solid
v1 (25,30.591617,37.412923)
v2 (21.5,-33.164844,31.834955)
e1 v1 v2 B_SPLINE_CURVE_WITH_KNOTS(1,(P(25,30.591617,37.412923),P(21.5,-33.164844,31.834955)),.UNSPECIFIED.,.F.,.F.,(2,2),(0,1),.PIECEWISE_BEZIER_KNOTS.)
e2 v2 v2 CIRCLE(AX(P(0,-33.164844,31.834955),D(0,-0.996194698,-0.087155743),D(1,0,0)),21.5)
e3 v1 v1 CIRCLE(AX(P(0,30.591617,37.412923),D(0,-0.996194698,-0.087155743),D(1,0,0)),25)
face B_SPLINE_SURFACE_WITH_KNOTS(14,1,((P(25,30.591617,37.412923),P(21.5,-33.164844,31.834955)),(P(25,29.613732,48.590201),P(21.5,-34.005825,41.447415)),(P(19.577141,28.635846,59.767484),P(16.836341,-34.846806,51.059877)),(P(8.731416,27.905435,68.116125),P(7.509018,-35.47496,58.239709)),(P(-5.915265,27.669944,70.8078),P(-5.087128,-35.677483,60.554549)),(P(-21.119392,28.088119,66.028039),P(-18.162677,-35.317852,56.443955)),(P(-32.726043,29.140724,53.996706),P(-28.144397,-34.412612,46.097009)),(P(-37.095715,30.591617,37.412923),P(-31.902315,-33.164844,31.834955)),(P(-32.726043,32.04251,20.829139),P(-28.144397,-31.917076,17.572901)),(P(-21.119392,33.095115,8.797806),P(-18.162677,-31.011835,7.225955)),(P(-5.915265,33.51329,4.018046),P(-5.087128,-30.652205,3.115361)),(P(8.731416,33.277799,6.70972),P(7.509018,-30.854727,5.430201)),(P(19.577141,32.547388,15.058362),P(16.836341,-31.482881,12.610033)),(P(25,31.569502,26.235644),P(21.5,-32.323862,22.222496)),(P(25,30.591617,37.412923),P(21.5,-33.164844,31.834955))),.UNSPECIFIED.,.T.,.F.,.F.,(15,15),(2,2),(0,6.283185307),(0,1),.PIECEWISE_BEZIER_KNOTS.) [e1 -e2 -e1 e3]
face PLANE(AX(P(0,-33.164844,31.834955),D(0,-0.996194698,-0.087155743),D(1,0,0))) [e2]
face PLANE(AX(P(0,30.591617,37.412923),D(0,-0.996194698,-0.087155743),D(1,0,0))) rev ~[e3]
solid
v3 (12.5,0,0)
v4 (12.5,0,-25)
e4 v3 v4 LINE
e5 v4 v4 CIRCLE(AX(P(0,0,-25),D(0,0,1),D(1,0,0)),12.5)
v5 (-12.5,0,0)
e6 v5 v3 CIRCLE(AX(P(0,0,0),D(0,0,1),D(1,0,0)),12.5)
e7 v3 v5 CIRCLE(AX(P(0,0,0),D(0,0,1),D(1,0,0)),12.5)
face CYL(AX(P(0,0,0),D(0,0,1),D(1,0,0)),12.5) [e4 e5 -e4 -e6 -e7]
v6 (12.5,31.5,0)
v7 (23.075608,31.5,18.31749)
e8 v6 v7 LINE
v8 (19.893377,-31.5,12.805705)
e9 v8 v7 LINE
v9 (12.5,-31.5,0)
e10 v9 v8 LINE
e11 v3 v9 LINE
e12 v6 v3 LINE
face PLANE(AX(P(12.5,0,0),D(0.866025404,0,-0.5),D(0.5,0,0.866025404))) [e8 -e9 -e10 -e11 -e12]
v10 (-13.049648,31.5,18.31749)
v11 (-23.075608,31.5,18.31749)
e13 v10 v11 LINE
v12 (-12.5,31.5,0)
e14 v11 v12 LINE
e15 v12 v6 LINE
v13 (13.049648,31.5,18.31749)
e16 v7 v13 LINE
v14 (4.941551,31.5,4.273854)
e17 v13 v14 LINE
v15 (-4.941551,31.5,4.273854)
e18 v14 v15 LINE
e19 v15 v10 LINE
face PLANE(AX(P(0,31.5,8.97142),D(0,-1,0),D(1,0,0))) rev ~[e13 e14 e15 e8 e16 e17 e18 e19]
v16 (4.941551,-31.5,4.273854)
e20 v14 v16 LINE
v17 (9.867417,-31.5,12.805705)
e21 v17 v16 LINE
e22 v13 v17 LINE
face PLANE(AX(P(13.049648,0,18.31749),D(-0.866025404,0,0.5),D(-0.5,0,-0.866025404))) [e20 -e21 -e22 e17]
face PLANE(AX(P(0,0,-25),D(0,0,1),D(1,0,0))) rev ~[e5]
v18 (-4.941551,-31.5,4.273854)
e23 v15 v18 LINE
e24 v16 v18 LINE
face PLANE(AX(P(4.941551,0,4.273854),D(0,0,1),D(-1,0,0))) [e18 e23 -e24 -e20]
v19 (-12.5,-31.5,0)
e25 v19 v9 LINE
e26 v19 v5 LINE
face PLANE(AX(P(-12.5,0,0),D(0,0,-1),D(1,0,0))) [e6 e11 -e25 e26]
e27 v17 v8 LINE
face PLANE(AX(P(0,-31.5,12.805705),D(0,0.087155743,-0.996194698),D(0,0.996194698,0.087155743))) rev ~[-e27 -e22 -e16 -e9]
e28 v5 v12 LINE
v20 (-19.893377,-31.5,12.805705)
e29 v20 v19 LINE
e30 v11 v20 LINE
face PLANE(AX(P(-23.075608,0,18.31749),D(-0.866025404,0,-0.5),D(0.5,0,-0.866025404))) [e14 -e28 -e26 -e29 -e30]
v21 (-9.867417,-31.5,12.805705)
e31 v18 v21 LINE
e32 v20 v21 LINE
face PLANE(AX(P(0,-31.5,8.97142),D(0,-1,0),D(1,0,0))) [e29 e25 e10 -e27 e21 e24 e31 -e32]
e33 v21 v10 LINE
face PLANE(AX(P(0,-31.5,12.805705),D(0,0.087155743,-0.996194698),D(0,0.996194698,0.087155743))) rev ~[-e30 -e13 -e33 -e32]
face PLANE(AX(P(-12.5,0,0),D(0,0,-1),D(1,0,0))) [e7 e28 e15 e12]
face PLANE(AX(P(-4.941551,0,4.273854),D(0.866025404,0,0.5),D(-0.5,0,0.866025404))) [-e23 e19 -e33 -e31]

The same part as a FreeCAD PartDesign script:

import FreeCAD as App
import Part
import Sketcher
Q = App.Units.Quantity


def add_polygon(sketch, points):
    """Adds a closed chain of lines whose ends are joined by coincident constraints."""
    first, n = sketch.GeometryCount, len(points)
    for a, b in zip(points, points[1:] + points[:1]):
        sketch.addGeometry(Part.LineSegment(App.Vector(*a, 0), App.Vector(*b, 0)), False)
    for i in range(n):
        sketch.addConstraint(Sketcher.Constraint("Coincident", first + i, 2, first + (i + 1) % n, 1))

doc = App.newDocument("Part")
body = doc.addObject("PartDesign::Body", "Body")

sketch1 = body.newObject("Sketcher::SketchObject", "Sketch")
sketch1.AttachmentSupport = (doc.getObject("XY_Plane"), [""])
sketch1.MapMode = "FlatFace"
sketch1.addGeometry(Part.Circle(App.Vector(0, 0, 0), App.Vector(0, 0, 1), 12), False)
sketch1.addConstraint([
    Sketcher.Constraint("Coincident", 0, 3, -1, 1),
    Sketcher.Constraint("Diameter", 0, Q("25 mm")),
])
pad1 = body.newObject("PartDesign::Pad", "Pad")
pad1.Profile = sketch1
pad1.Length = 25
pad1.Reversed = True

sketch2 = body.newObject("Sketcher::SketchObject", "Sketch001")
sketch2.AttachmentSupport = (doc.getObject("XZ_Plane"), [""])
sketch2.MapMode = "FlatFace"
add_polygon(sketch2, [(-12, 0), (12, 0), (23, 18), (13, 18), (5, 4), (-5, 4), (-13, 18), (-23, 18)])
sketch2.addConstraint([
    Sketcher.Constraint("Horizontal", 0),
    Sketcher.Constraint("Horizontal", 2),
    Sketcher.Constraint("Horizontal", 4),
    Sketcher.Constraint("Horizontal", 6),
    Sketcher.Constraint("Symmetric", 0, 2, 7, 2, -1, 1),
    Sketcher.Constraint("Symmetric", 2, 2, 5, 2, -2),
    Sketcher.Constraint("Parallel", 1, 3),
    Sketcher.Constraint("Parallel", 5, 7),
    Sketcher.Constraint("Equal", 2, 6),
    Sketcher.Constraint("DistanceX", 0, 1, 0, 2, Q("25 mm")),
    Sketcher.Constraint("Angle", 1, Q("60 deg")),
    Sketcher.Constraint("DistanceX", 2, 2, 2, 1, Q("10.02596 mm")),
    Sketcher.Constraint("DistanceX", 4, 2, 2, 2, Q("17.991199 mm")),
    Sketcher.Constraint("DistanceX", 4, 2, 4, 1, Q("9.883102 mm")),
])
pad2 = body.newObject("PartDesign::Pad", "Pad001")
pad2.Profile = sketch2
pad2.Length = 63
pad2.Midplane = True

sketch3 = body.newObject("Sketcher::SketchObject", "Sketch002")
sketch3.AttachmentSupport = (doc.getObject("YZ_Plane"), [""])
sketch3.MapMode = "FlatFace"
add_polygon(sketch3, [(-32, 41), (-32, 13), (32, 18), (32, 41)])
sketch3.addConstraint([
    Sketcher.Constraint("Vertical", 0),
    Sketcher.Constraint("Vertical", 2),
    Sketcher.Constraint("Horizontal", 3),
    Sketcher.Constraint("DistanceX", 3, 2, 3, 1, Q("63 mm")),
    Sketcher.Constraint("Angle", 1, Q("5 deg")),
    Sketcher.Constraint("DistanceX", 0, 2, -1, 1, Q("31.5 mm")),
    Sketcher.Constraint("DistanceY", 0, 2, 0, 1, Q("28.245791 mm")),
    Sketcher.Constraint("DistanceY", -1, 1, 1, 2, Q("18.31749 mm")),
])
pocket1 = body.newObject("PartDesign::Pocket", "Pocket")
pocket1.Profile = sketch3
pocket1.Length = 100
pocket1.Midplane = True
body2 = doc.addObject("PartDesign::Body", "Body001")

sketch4 = body2.newObject("Sketcher::SketchObject", "Sketch003")
sketch4.Placement = App.Placement(App.Vector(0, 33.607582, 2.940282), App.Rotation(App.Vector(1, 0, 0), App.Vector(0, -0.087155743, 0.996194698), App.Vector(0, -0.996194698, -0.087155743), "ZXY"))
sketch4.addGeometry(Part.Circle(App.Vector(0, 35, 0), App.Vector(0, 0, 1), 25), False)
sketch4.addConstraint([
    Sketcher.Constraint("PointOnObject", 0, 3, -2),
    Sketcher.Constraint("Diameter", 0, Q("50 mm")),
    Sketcher.Constraint("DistanceY", -1, 1, 0, 3, Q("34.60432 mm")),
])

sketch5 = body2.newObject("Sketcher::SketchObject", "Sketch004")
sketch5.Placement = App.Placement(App.Vector(0, -30.148878, -2.637685), App.Rotation(App.Vector(1, 0, 0), App.Vector(0, -0.087155743, 0.996194698), App.Vector(0, -0.996194698, -0.087155743), "ZXY"))
sketch5.addGeometry(Part.Circle(App.Vector(0, 35, 0), App.Vector(0, 0, 1), 22), False)
sketch5.addConstraint([
    Sketcher.Constraint("PointOnObject", 0, 3, -2),
    Sketcher.Constraint("Diameter", 0, Q("43 mm")),
    Sketcher.Constraint("DistanceY", -1, 1, 0, 3, Q("34.60432 mm")),
])

additiveloft = body2.newObject("PartDesign::AdditiveLoft", "AdditiveLoft")
additiveloft.Profile = sketch4
additiveloft.Sections = [sketch5]

doc.recompute()
